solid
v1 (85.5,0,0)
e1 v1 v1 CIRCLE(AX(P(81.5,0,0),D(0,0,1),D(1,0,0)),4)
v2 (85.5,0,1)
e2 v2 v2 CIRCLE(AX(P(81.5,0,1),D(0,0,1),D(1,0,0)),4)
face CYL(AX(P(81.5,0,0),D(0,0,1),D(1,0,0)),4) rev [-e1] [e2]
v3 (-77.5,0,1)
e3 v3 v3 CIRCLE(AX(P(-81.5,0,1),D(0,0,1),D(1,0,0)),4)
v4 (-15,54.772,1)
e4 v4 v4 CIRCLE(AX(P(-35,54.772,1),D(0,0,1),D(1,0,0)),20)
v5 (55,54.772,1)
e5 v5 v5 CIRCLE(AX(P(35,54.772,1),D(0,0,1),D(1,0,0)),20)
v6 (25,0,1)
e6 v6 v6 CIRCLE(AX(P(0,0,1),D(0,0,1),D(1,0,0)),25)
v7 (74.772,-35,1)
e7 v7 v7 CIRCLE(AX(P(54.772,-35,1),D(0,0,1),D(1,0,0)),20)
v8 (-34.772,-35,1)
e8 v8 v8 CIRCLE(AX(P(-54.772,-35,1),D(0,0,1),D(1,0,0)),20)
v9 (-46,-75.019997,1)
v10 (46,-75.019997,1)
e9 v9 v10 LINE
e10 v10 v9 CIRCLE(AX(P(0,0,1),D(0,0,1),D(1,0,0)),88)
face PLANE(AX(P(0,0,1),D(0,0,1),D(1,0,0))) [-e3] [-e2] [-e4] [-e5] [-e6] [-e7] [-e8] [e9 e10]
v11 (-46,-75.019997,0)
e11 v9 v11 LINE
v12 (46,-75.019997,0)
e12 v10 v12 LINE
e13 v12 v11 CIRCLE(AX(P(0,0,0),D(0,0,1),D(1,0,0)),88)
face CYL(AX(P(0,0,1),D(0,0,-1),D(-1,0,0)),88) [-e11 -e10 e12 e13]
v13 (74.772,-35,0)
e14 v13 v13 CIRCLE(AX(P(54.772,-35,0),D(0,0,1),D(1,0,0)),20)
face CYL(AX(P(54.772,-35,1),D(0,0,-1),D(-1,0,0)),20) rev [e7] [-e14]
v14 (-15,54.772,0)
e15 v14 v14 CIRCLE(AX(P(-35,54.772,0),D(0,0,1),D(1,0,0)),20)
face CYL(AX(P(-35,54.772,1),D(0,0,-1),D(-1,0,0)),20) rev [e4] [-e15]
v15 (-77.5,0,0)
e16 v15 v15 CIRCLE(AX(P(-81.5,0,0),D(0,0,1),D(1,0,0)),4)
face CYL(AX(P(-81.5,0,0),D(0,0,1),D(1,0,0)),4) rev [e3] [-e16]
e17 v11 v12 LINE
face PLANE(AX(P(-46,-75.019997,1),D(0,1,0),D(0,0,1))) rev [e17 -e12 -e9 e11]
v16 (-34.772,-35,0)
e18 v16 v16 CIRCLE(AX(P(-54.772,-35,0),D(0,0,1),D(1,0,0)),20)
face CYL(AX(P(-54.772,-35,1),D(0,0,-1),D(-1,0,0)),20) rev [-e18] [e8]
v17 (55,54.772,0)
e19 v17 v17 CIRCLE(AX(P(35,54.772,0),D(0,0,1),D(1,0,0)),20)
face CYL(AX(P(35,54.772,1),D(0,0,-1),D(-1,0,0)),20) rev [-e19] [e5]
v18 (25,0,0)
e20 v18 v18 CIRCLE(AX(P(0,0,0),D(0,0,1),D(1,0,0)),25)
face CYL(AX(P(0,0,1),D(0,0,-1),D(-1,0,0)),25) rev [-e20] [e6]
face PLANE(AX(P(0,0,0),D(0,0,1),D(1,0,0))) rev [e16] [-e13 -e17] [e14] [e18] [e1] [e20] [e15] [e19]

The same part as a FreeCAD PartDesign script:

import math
import FreeCAD as App
import Part
import Sketcher

V = App.Vector

doc = App.newDocument("Part")
body = doc.addObject("PartDesign::Body", "Body")

# Sketch on XY plane
sketch1 = doc.addObject("Sketcher::SketchObject", "Sketch")
body.addObject(sketch1)
sketch1.AttachmentSupport = (doc.XY_Plane, [""])
sketch1.MapMode = "FlatFace"
sketch1.addGeometry(Part.LineSegment(V(-46, -75, 0), V(46, -75, 0)), False)
sketch1.addGeometry(Part.ArcOfCircle(Part.Circle(V(0, 0, 0), V(0, 0, 1), 88), math.radians(-58), math.radians(238)), False)
sketch1.addGeometry(Part.Circle(V(-55, -35, 0), V(0, 0, 1), 20), False)
sketch1.addGeometry(Part.Circle(V(55, -35, 0), V(0, 0, 1), 20), False)
sketch1.addGeometry(Part.Circle(V(0, 0, 0), V(0, 0, 1), 25), False)
sketch1.addGeometry(Part.Circle(V(-35, 55, 0), V(0, 0, 1), 20), False)
sketch1.addGeometry(Part.Circle(V(35, 55, 0), V(0, 0, 1), 20), False)
sketch1.addConstraint(Sketcher.Constraint("Coincident", 0, 1, 1, 2))
sketch1.addConstraint(Sketcher.Constraint("Coincident", 1, 1, 0, 2))
sketch1.addConstraint(Sketcher.Constraint("Horizontal", 0))
sketch1.addConstraint(Sketcher.Constraint("Coincident", 1, 3, -1, 1))
sketch1.addConstraint(Sketcher.Constraint("Coincident", 4, 3, -1, 1))
sketch1.addConstraint(Sketcher.Constraint("Equal", 2, 3))
sketch1.addConstraint(Sketcher.Constraint("Equal", 3, 5))
sketch1.addConstraint(Sketcher.Constraint("Equal", 5, 6))
sketch1.addConstraint(Sketcher.Constraint("Symmetric", 2, 3, 3, 3, -2))
sketch1.addConstraint(Sketcher.Constraint("Symmetric", 5, 3, 6, 3, -2))
sketch1.addConstraint(Sketcher.Constraint("Diameter", 2, 40.0))
sketch1.addConstraint(Sketcher.Constraint("Diameter", 4, 50.0))
sketch1.addConstraint(Sketcher.Constraint("Radius", 1, 88.0))
sketch1.addConstraint(Sketcher.Constraint("DistanceX", 0, 1, 0, 2, 92.0))
sketch1.addConstraint(Sketcher.Constraint("DistanceY", 2, 3, -1, 1, 35.0))
sketch1.addConstraint(Sketcher.Constraint("DistanceX", 5, 3, -1, 1, 35.0))
sketch1.addConstraint(Sketcher.Constraint("DistanceX", 2, 3, -1, 1, 54.772))
sketch1.addConstraint(Sketcher.Constraint("DistanceY", -1, 1, 5, 3, 54.772))
pad1 = doc.addObject("PartDesign::Pad", "Pad")
body.addObject(pad1)
pad1.Profile = sketch1
pad1.Length = 1

# Sketch on XY plane
sketch2 = doc.addObject("Sketcher::SketchObject", "Sketch001")
body.addObject(sketch2)
sketch2.AttachmentSupport = (doc.XY_Plane, [""])
sketch2.MapMode = "FlatFace"
sketch2.AttachmentOffset = App.Placement(V(0, 0, 1), App.Rotation())
sketch2.addGeometry(Part.Circle(V(81.5, 0, 0), V(0, 0, 1), 4), False)
sketch2.addGeometry(Part.Circle(V(-81.5, 0, 0), V(0, 0, 1), 4), False)
sketch2.addConstraint(Sketcher.Constraint("Equal", 0, 1))
sketch2.addConstraint(Sketcher.Constraint("Symmetric", 0, 3, 1, 3, -1, 1))
sketch2.addConstraint(Sketcher.Constraint("PointOnObject", 0, 3, -1))
sketch2.addConstraint(Sketcher.Constraint("Diameter", 0, 8.0))
sketch2.addConstraint(Sketcher.Constraint("DistanceX", 1, 3, 0, 3, 163.0))
pocket1 = doc.addObject("PartDesign::Pocket", "Pocket")
body.addObject(pocket1)
pocket1.Profile = sketch2
pocket1.Length = 1

doc.recompute()
